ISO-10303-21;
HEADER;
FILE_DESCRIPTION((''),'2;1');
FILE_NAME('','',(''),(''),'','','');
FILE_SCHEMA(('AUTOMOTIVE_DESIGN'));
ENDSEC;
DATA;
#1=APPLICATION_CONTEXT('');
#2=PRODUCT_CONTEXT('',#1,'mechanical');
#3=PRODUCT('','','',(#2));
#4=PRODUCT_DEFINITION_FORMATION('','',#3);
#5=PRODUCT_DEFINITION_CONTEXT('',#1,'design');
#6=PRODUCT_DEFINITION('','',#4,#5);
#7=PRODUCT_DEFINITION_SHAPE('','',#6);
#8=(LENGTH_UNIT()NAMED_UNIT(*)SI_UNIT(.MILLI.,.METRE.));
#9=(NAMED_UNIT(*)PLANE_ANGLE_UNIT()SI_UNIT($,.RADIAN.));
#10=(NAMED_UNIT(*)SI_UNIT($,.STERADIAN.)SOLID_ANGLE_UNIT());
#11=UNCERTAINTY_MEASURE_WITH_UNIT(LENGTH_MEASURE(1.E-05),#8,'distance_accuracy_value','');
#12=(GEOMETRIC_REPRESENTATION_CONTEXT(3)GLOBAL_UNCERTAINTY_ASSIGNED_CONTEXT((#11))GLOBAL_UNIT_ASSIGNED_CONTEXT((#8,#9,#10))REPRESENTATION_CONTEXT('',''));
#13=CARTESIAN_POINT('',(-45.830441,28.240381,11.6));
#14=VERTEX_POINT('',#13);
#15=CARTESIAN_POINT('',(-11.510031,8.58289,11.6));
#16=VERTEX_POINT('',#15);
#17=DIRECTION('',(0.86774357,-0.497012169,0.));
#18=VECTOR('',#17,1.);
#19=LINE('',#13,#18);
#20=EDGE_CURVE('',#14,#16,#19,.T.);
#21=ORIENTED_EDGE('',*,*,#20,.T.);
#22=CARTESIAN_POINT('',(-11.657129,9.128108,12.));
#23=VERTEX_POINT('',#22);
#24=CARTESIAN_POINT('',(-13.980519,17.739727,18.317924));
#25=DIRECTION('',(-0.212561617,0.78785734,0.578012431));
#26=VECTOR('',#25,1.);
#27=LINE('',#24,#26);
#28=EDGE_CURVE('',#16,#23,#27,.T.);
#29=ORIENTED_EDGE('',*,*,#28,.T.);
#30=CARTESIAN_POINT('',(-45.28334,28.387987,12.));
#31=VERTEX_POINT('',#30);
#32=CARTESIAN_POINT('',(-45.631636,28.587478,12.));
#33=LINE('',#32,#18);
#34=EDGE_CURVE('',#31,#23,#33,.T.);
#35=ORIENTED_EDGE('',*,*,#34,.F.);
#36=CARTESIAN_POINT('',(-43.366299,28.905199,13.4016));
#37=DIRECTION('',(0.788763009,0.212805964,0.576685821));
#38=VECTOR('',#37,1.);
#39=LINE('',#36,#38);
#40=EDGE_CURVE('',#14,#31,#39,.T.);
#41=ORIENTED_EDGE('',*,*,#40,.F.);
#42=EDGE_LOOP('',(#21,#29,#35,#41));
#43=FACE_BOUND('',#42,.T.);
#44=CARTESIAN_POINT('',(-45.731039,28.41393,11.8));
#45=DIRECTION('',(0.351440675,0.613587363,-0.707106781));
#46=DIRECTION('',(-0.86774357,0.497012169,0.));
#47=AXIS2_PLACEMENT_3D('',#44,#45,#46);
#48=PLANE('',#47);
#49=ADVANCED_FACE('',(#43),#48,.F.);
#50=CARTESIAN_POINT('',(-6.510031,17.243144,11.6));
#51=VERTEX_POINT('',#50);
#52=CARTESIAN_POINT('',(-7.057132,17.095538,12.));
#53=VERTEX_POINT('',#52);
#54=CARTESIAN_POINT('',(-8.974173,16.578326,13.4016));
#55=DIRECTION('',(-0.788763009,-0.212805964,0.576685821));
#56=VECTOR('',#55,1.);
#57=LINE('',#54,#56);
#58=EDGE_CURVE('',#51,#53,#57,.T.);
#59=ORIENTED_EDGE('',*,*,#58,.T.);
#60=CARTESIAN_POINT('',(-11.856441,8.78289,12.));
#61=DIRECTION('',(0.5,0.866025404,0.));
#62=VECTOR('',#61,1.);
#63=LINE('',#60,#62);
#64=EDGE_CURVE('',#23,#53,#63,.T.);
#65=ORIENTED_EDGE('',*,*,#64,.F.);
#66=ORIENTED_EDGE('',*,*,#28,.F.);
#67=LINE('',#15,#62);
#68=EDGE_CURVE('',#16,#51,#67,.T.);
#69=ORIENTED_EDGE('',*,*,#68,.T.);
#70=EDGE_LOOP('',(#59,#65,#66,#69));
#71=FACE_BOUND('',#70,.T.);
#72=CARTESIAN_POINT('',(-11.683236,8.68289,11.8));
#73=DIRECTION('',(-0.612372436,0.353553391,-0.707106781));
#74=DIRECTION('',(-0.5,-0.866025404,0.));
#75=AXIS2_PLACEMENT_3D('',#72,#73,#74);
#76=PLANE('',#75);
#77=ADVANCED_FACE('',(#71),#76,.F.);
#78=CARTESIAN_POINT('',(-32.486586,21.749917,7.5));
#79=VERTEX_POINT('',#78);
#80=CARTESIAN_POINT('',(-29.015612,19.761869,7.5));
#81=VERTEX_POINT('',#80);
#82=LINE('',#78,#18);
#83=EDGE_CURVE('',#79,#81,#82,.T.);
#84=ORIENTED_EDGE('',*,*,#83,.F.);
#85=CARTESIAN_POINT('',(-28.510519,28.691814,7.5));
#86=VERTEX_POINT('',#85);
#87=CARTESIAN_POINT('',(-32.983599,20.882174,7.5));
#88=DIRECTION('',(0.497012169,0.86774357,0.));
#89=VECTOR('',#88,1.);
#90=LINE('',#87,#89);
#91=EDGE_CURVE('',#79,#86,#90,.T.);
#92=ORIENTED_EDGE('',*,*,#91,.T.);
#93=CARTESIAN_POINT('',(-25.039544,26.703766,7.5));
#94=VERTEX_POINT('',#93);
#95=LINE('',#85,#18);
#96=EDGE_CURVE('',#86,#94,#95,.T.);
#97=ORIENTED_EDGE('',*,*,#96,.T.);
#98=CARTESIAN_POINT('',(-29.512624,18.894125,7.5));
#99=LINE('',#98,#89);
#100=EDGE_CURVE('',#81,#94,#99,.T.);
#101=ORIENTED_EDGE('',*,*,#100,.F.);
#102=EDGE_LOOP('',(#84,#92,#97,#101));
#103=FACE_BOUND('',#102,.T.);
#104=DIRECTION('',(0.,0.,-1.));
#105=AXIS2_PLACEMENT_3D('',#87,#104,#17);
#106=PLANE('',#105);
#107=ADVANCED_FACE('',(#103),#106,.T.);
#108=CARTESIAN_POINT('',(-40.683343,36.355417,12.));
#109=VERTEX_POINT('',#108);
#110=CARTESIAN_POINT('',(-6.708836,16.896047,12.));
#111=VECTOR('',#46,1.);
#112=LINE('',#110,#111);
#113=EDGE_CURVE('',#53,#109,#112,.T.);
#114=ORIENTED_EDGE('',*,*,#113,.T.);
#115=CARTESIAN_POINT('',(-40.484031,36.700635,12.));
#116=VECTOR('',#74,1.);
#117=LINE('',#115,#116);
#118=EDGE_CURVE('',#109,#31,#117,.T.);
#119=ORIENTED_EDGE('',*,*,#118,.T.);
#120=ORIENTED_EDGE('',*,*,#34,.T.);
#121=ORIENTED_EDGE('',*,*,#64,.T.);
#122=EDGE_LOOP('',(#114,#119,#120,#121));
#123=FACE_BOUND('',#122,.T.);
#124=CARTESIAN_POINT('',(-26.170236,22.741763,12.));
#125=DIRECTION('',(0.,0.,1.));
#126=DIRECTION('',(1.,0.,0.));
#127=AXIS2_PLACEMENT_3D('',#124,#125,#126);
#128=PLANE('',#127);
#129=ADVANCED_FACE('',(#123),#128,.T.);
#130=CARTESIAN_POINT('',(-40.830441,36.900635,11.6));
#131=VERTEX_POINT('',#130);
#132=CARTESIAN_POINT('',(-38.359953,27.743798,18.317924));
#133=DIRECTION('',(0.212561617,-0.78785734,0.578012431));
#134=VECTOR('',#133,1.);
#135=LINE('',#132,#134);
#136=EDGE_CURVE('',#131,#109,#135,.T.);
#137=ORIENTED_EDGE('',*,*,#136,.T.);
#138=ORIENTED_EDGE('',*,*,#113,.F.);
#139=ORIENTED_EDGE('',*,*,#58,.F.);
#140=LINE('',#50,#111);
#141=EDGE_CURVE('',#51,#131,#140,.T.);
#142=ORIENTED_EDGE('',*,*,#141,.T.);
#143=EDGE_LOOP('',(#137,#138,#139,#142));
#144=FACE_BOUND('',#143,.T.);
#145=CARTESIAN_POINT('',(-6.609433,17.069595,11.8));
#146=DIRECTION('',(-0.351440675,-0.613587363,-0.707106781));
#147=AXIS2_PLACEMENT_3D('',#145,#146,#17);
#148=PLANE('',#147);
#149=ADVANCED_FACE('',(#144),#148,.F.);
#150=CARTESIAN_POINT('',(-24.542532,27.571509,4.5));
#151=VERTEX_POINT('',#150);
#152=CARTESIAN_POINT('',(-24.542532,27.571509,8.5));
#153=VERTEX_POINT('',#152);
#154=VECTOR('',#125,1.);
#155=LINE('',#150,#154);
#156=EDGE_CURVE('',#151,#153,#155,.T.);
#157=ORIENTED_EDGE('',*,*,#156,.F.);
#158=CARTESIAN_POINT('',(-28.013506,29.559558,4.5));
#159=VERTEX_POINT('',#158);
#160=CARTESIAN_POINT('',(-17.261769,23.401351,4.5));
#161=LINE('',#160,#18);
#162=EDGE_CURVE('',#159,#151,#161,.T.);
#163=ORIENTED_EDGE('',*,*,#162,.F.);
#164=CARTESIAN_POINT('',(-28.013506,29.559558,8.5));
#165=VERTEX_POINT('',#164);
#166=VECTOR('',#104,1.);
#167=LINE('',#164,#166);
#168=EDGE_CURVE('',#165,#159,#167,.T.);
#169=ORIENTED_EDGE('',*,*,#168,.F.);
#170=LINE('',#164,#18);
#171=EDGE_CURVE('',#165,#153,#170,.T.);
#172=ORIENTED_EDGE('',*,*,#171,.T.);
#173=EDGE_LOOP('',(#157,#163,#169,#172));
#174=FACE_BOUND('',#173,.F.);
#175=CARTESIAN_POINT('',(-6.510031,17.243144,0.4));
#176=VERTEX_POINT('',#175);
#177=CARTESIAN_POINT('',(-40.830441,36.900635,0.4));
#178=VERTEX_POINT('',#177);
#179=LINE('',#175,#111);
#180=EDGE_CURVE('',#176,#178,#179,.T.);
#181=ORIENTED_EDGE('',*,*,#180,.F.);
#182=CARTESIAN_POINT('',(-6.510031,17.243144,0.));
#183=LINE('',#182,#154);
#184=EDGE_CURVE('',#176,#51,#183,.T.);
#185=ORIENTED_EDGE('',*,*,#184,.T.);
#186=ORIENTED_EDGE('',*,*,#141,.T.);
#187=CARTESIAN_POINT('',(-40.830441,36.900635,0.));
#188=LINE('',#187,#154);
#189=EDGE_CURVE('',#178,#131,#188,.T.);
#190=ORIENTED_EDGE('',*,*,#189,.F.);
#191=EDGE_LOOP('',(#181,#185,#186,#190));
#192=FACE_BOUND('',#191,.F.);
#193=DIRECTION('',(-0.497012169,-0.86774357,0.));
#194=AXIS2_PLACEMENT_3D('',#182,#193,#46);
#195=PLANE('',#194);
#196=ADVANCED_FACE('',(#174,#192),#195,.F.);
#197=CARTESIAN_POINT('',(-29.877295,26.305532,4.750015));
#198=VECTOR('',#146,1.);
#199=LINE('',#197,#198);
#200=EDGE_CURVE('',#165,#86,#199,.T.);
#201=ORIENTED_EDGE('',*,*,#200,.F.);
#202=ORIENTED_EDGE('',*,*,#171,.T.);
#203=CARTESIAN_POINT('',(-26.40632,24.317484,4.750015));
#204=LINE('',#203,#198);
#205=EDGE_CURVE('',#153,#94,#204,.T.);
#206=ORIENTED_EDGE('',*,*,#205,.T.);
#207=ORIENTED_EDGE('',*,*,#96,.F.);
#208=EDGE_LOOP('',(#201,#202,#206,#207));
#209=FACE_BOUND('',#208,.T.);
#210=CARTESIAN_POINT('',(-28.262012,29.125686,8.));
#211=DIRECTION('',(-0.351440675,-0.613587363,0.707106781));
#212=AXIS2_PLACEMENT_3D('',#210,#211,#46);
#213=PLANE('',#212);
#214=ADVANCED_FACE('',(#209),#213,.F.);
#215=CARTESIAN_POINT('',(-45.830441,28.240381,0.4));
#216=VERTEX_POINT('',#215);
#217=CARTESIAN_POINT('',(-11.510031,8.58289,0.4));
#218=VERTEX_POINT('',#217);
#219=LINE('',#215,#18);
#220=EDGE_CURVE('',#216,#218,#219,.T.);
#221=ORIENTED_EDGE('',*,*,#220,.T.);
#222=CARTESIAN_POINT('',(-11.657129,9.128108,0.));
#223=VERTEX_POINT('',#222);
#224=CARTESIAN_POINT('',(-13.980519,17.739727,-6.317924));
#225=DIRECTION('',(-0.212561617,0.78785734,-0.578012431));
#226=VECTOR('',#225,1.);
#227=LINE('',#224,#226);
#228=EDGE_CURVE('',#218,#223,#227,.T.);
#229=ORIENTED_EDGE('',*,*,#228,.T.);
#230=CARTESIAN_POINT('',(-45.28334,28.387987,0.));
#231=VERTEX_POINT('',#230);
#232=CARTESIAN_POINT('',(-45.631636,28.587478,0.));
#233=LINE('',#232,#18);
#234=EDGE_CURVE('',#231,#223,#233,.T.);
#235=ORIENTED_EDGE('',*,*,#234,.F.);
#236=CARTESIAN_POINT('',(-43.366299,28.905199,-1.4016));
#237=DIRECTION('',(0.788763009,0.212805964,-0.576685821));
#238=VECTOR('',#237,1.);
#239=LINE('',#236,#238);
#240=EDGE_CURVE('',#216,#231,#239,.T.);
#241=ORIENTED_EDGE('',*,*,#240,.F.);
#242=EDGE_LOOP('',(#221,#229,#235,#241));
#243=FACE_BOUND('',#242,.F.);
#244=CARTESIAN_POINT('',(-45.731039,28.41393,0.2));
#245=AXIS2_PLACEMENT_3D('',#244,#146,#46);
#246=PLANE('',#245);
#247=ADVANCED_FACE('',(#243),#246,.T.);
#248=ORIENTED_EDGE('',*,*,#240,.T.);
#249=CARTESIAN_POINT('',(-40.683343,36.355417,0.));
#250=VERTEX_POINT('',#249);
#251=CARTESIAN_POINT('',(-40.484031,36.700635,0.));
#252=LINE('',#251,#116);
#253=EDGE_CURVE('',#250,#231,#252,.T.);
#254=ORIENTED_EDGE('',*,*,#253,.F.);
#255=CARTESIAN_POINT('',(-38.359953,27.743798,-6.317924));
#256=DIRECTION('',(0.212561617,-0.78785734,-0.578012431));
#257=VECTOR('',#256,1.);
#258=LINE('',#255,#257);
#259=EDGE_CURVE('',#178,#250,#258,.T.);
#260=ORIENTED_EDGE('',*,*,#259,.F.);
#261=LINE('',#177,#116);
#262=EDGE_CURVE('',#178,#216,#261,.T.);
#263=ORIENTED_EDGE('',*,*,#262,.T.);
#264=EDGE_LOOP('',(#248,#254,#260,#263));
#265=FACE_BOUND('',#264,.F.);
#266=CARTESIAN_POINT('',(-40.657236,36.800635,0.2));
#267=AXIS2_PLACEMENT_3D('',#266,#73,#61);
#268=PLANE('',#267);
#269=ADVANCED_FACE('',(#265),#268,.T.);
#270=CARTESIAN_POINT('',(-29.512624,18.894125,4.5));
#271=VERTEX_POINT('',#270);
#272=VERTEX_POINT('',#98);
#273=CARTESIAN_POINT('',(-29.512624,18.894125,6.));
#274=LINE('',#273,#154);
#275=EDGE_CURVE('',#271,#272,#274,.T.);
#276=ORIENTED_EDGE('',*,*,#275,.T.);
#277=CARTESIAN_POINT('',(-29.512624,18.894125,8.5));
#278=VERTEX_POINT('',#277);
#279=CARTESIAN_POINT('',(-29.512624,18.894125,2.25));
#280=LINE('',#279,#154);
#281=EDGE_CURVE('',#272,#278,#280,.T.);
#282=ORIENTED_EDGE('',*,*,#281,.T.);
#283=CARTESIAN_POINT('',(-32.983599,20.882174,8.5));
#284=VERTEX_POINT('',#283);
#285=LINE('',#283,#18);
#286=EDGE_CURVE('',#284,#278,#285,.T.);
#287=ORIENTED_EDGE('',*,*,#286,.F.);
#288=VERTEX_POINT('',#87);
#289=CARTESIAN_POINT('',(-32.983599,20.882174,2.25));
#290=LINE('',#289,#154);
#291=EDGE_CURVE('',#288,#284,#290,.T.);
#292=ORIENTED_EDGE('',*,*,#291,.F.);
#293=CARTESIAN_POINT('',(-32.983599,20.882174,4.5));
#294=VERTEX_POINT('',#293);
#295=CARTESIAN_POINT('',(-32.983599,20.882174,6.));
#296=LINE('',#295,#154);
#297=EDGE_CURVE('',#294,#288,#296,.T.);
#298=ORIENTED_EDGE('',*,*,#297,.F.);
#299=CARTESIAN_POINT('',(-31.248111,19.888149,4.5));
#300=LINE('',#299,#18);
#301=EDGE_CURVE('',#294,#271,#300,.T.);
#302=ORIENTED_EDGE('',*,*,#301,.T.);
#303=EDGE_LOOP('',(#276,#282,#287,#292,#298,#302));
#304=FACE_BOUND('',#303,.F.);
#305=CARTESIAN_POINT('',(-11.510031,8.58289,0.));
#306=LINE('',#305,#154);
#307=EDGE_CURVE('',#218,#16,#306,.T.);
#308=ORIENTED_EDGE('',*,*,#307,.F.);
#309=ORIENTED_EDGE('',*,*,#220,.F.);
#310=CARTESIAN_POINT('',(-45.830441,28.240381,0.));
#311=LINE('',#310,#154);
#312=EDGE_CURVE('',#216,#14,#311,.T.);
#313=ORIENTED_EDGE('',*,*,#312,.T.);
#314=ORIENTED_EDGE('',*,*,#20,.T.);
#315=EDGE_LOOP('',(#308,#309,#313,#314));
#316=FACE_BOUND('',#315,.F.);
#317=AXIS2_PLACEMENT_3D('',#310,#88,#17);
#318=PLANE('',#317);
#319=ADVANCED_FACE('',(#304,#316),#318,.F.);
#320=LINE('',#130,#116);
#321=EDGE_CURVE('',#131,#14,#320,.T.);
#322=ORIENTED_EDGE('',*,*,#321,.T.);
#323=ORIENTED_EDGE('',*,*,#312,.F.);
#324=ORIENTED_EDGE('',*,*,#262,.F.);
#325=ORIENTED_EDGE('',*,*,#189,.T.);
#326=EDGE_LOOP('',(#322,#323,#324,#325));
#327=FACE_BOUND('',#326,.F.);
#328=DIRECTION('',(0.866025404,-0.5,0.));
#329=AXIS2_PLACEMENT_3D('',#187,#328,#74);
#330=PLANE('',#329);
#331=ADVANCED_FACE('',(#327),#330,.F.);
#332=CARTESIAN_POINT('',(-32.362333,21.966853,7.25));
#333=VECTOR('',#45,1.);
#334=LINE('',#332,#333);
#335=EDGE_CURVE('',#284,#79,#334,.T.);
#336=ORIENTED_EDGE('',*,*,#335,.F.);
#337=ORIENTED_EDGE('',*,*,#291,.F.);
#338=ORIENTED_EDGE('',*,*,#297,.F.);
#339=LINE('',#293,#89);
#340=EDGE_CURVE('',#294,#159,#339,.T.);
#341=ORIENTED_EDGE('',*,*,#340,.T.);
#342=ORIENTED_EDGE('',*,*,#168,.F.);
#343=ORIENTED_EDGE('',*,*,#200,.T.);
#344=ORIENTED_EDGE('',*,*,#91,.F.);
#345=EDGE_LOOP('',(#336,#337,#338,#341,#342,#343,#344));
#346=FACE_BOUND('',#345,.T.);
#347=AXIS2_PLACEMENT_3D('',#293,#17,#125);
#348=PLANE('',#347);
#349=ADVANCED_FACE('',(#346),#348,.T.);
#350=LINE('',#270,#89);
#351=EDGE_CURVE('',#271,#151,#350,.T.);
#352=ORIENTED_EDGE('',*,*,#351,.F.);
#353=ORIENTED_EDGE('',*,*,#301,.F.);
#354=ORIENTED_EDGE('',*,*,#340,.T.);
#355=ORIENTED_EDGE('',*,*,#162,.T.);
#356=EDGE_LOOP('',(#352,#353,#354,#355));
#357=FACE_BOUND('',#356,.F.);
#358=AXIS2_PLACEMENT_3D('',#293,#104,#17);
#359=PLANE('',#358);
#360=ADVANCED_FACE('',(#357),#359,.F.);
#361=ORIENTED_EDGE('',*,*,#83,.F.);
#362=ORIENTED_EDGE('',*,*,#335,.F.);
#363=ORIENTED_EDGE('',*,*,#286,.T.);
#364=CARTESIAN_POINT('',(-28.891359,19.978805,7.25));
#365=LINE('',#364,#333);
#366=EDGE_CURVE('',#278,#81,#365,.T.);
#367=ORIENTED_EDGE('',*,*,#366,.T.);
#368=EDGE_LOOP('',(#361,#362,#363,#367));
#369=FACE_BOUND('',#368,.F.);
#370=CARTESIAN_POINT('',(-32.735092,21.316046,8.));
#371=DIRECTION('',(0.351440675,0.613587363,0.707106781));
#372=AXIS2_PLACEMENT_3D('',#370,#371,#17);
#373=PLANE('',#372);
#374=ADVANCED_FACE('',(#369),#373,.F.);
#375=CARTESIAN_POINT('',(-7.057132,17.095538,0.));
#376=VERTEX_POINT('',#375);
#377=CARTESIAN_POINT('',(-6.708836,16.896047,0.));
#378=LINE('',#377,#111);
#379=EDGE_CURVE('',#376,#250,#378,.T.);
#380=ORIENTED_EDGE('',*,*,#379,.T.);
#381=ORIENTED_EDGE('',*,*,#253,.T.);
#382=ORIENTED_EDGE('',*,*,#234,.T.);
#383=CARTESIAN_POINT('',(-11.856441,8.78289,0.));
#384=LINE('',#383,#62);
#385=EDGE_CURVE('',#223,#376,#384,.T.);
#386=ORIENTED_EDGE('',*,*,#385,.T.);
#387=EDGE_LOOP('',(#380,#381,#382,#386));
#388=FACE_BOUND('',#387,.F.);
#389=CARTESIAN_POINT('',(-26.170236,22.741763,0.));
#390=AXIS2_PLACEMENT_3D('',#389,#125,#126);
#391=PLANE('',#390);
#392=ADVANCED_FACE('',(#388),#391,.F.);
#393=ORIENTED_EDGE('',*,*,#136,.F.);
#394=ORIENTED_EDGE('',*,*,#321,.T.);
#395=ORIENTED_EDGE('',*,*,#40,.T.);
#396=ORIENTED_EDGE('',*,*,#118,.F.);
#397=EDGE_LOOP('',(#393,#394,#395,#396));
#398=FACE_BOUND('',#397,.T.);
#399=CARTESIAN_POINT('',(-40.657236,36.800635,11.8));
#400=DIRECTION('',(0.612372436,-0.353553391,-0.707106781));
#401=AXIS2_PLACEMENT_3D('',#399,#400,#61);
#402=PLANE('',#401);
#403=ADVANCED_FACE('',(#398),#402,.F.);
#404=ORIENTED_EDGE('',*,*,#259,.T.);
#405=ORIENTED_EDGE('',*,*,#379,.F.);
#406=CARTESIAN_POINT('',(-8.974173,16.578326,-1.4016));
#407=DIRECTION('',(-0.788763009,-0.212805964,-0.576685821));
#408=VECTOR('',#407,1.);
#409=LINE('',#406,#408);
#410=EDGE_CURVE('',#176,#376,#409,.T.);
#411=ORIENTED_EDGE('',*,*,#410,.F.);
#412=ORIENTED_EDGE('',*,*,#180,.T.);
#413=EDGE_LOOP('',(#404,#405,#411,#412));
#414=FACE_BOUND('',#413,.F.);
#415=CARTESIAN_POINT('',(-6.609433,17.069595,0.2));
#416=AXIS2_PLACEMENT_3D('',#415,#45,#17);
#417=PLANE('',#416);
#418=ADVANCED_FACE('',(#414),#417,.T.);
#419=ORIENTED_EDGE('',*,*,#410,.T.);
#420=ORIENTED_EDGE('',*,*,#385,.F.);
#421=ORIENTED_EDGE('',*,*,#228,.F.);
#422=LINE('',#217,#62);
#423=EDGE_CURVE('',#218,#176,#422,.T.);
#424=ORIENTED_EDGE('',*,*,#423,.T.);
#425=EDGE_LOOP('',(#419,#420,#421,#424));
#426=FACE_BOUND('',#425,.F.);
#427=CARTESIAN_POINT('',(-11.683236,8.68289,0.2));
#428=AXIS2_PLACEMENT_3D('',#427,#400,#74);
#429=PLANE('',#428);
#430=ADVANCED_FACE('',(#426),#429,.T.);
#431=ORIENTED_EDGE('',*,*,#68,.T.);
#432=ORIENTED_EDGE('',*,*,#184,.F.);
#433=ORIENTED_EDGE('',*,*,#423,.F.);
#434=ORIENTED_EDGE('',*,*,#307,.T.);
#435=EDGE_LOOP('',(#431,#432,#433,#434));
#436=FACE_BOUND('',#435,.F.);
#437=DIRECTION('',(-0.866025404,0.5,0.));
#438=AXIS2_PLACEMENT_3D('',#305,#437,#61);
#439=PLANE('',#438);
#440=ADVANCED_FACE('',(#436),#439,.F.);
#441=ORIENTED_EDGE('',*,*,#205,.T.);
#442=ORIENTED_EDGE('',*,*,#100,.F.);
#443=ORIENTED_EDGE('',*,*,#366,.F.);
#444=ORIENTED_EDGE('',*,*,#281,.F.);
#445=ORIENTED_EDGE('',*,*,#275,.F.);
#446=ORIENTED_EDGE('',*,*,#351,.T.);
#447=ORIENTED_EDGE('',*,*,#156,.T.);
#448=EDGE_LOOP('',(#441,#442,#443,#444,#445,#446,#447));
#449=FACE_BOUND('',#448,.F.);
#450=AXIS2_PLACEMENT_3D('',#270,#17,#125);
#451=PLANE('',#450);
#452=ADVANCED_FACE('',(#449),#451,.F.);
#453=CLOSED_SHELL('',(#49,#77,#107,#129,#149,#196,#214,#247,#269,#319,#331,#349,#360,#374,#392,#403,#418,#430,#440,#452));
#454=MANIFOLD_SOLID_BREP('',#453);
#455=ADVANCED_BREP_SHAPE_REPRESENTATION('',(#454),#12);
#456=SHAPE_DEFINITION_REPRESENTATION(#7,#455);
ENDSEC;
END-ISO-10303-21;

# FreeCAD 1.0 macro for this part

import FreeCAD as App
import Part
import Sketcher
from FreeCAD import Vector
Q = App.Units.Quantity


def edges_at(feature, points):
    """Names of the edges that pass closest to the given points."""
    edges = feature.Shape.Edges
    near = lambda p: min(range(len(edges)), key=lambda i: edges[i].distToShape(Part.Vertex(*p))[0])
    return sorted({f"Edge{near(p) + 1}" for p in points})

doc = App.newDocument("Part")
body = doc.addObject("PartDesign::Body", "Body")

# Sketch on XY plane
sketch1 = doc.addObject("Sketcher::SketchObject", "Sketch")
body.addObject(sketch1)
sketch1.AttachmentSupport = (doc.XY_Plane, [""])
sketch1.MapMode = "FlatFace"
sketch1.addGeometry([
    Part.LineSegment(Vector(-40.830441, 36.900635, 0), Vector(-45.830441, 28.240381, 0)),
    Part.LineSegment(Vector(-45.830441, 28.240381, 0), Vector(-11.510031, 8.58289, 0)),
    Part.LineSegment(Vector(-11.510031, 8.58289, 0), Vector(-6.510031, 17.243144, 0)),
    Part.LineSegment(Vector(-6.510031, 17.243144, 0), Vector(-40.830441, 36.900635, 0)),
], False)
sketch1.addConstraint([
    Sketcher.Constraint("Coincident", 0, 2, 1, 1),
    Sketcher.Constraint("Coincident", 1, 2, 2, 1),
    Sketcher.Constraint("Coincident", 2, 2, 3, 1),
    Sketcher.Constraint("Coincident", 3, 2, 0, 1),
    Sketcher.Constraint("Parallel", 0, 2),
    Sketcher.Constraint("Parallel", 1, 3),
    Sketcher.Constraint("Angle", 0, Q("-120 deg")),
    Sketcher.Constraint("Distance", 0, 10.0),
    Sketcher.Constraint("DistanceX", 0, 2, -1, 1, 45.830441),
    Sketcher.Constraint("DistanceY", -1, 1, 0, 2, 28.240381),
    Sketcher.Constraint("DistanceX", 1, 2, -1, 1, 11.510031),
    Sketcher.Constraint("DistanceY", -1, 1, 1, 2, 8.58289),
])
pad1 = doc.addObject("PartDesign::Pad", "Pad")
body.addObject(pad1)
pad1.Profile = sketch1
pad1.Length = 12
doc.recompute()

chamfer = doc.addObject("PartDesign::Chamfer", "Chamfer")
body.addObject(chamfer)
chamfer.Base = (pad1, edges_at(pad1, [
    (-43.33, 32.571, 12),
    (-28.67, 18.412, 12),
    (-9.01, 12.913, 12),
    (-23.67, 27.072, 12),
    (-43.33, 32.571, 0),
    (-28.67, 18.412, 0),
    (-9.01, 12.913, 0),
    (-23.67, 27.072, 0),
]))
chamfer.Size = 0.4

# Sketch on an angled plane
sketch2 = doc.addObject("Sketcher::SketchObject", "Sketch001")
body.addObject(sketch2)
sketch2.Placement = App.Placement(Vector(0.858401, 1.498699, 0), App.Rotation(Vector(0.86774357, -0.497012169, 0), Vector(0, 0, 0.999999999), Vector(-0.497012169, -0.86774357, 0), "ZXY"))
sketch2.addGeometry([
    Part.LineSegment(Vector(-39, 7.5, 0), Vector(-39, 4.5, 0)),
    Part.LineSegment(Vector(-39, 4.5, 0), Vector(-35, 4.5, 0)),
    Part.LineSegment(Vector(-35, 4.5, 0), Vector(-35, 7.5, 0)),
    Part.LineSegment(Vector(-35, 7.5, 0), Vector(-39, 7.5, 0)),
], False)
sketch2.addConstraint([
    Sketcher.Constraint("Coincident", 0, 2, 1, 1),
    Sketcher.Constraint("Coincident", 1, 2, 2, 1),
    Sketcher.Constraint("Coincident", 2, 2, 3, 1),
    Sketcher.Constraint("Coincident", 3, 2, 0, 1),
    Sketcher.Constraint("Vertical", 0),
    Sketcher.Constraint("Horizontal", 1),
    Sketcher.Constraint("Vertical", 2),
    Sketcher.Constraint("Horizontal", 3),
    Sketcher.Constraint("DistanceX", 1, 1, 1, 2, 4.0),
    Sketcher.Constraint("DistanceY", 0, 2, 0, 1, 3.0),
    Sketcher.Constraint("DistanceX", 0, 2, -1, 1, 39.0),
    Sketcher.Constraint("DistanceY", -1, 1, 0, 2, 4.5),
])
pocket1 = doc.addObject("PartDesign::Pocket", "Pocket")
body.addObject(pocket1)
pocket1.Profile = sketch2
pocket1.Type = "ThroughAll"
doc.recompute()

chamfer2 = doc.addObject("PartDesign::Chamfer", "Chamfer001")
body.addObject(chamfer2)
chamfer2.Base = (pocket1, edges_at(pocket1, [(-31.248, 19.888, 7.5), (-26.278, 28.566, 7.5)]))
chamfer2.Size = 1

doc.recompute()
